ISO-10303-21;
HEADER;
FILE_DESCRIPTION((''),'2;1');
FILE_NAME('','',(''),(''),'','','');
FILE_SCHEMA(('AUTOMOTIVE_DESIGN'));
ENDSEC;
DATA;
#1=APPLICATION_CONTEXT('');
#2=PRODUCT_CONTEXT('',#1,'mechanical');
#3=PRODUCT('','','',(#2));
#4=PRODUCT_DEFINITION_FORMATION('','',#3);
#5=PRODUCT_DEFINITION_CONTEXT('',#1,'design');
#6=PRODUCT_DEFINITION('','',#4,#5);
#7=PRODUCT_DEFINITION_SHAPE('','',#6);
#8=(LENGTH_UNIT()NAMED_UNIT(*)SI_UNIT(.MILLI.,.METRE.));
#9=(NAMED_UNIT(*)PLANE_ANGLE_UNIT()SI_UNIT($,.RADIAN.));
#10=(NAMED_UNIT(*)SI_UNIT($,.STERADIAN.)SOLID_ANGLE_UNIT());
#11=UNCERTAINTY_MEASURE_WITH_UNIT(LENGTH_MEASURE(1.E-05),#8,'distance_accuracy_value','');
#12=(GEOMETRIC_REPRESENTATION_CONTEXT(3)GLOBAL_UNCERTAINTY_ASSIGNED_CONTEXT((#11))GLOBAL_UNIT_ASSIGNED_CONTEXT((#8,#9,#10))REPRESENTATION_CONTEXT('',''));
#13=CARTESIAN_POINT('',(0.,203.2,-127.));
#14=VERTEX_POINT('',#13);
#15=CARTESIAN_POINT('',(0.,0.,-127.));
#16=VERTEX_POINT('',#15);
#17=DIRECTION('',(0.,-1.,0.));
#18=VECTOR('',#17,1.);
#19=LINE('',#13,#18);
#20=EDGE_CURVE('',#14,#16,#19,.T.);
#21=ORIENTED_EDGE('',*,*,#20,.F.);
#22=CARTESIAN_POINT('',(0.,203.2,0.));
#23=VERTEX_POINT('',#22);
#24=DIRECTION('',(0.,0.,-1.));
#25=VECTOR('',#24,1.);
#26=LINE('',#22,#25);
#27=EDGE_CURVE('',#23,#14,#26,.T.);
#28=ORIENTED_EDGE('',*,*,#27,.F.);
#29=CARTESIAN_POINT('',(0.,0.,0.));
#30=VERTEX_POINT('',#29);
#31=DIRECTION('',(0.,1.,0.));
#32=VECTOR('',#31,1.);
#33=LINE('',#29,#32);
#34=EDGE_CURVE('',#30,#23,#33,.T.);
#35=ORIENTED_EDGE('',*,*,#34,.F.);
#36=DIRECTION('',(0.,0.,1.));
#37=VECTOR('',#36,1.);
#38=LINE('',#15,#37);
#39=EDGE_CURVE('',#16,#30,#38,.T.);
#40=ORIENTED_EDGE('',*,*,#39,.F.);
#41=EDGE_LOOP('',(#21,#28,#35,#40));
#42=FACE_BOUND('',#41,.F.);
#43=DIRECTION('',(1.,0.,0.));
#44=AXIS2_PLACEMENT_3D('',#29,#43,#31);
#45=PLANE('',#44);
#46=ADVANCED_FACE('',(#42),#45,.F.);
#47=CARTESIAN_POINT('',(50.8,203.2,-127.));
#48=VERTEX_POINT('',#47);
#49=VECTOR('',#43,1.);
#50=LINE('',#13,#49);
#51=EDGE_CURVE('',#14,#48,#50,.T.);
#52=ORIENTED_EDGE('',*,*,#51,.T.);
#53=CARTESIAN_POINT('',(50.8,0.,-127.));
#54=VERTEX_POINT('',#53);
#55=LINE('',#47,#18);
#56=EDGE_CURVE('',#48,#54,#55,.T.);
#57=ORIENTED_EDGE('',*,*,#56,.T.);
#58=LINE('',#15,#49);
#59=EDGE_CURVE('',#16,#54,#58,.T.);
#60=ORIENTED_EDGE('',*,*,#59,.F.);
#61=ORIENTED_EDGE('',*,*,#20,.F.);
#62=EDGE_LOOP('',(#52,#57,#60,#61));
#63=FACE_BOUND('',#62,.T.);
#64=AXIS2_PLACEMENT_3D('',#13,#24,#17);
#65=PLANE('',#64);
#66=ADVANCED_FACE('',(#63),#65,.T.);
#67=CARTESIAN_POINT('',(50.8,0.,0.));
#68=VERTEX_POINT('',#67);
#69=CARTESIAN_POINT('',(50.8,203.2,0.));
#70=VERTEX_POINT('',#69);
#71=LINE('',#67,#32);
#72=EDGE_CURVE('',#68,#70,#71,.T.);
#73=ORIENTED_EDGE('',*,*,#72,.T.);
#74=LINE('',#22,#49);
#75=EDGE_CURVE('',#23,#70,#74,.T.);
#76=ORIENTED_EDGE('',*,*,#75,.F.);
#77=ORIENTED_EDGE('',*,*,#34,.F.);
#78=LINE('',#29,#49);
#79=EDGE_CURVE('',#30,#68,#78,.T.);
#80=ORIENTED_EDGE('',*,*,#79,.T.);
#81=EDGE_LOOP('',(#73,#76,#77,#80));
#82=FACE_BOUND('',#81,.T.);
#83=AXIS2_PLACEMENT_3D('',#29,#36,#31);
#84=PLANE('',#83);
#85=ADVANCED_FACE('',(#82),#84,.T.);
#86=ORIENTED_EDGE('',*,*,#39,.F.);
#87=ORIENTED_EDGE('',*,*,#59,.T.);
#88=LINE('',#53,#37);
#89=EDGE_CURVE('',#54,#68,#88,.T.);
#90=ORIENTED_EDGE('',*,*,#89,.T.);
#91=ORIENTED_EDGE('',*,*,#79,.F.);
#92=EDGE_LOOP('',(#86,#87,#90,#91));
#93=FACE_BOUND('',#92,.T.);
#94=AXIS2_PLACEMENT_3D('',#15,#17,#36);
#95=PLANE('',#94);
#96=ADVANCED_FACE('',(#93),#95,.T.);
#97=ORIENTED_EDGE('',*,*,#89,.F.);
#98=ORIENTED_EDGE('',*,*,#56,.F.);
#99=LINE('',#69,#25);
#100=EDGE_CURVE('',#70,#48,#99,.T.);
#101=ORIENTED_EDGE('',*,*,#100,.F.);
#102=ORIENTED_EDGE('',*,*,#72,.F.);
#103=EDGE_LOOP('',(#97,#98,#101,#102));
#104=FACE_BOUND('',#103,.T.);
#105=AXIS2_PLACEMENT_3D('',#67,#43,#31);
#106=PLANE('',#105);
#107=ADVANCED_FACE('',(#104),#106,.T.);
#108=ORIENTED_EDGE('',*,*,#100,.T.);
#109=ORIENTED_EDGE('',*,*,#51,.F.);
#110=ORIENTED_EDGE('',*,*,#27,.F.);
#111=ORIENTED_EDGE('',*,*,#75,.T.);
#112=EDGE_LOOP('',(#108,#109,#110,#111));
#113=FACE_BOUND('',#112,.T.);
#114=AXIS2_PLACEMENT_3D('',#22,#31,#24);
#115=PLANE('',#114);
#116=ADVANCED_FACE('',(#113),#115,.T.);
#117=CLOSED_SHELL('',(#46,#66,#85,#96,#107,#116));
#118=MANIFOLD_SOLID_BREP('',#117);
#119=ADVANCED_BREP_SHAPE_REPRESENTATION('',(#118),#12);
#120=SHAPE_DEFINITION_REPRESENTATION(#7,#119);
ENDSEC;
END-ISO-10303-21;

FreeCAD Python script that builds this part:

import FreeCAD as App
import Part
import Sketcher
Q = App.Units.Quantity


def add_polygon(sketch, points):
    """Adds a closed chain of lines whose ends are joined by coincident constraints."""
    first, n = sketch.GeometryCount, len(points)
    for a, b in zip(points, points[1:] + points[:1]):
        sketch.addGeometry(Part.LineSegment(App.Vector(*a, 0), App.Vector(*b, 0)), False)
    for i in range(n):
        sketch.addConstraint(Sketcher.Constraint("Coincident", first + i, 2, first + (i + 1) % n, 1))

doc = App.newDocument("Part")
body = doc.addObject("PartDesign::Body", "Body")

# Sketch on YZ plane
sketch1 = doc.addObject("Sketcher::SketchObject", "Sketch")
body.addObject(sketch1)
sketch1.AttachmentSupport = (doc.YZ_Plane, [""])
sketch1.MapMode = "FlatFace"
add_polygon(sketch1, [(203.2, 0), (0, 0), (0, -127), (203.2, -127)])  # lines 0-3
sketch1.addConstraint([
    Sketcher.Constraint("Horizontal", 0),
    Sketcher.Constraint("Vertical", 1),
    Sketcher.Constraint("Horizontal", 2),
    Sketcher.Constraint("Vertical", 3),
    Sketcher.Constraint("Coincident", 0, 2, -1, 1),
    Sketcher.Constraint("DistanceX", 0, 2, 0, 1, Q("8 in")),
    Sketcher.Constraint("DistanceY", 1, 2, 1, 1, Q("5 in")),
])
pad1 = doc.addObject("PartDesign::Pad", "Pad")
body.addObject(pad1)
pad1.Profile = sketch1
pad1.Length = Q("2 in")

doc.recompute()
